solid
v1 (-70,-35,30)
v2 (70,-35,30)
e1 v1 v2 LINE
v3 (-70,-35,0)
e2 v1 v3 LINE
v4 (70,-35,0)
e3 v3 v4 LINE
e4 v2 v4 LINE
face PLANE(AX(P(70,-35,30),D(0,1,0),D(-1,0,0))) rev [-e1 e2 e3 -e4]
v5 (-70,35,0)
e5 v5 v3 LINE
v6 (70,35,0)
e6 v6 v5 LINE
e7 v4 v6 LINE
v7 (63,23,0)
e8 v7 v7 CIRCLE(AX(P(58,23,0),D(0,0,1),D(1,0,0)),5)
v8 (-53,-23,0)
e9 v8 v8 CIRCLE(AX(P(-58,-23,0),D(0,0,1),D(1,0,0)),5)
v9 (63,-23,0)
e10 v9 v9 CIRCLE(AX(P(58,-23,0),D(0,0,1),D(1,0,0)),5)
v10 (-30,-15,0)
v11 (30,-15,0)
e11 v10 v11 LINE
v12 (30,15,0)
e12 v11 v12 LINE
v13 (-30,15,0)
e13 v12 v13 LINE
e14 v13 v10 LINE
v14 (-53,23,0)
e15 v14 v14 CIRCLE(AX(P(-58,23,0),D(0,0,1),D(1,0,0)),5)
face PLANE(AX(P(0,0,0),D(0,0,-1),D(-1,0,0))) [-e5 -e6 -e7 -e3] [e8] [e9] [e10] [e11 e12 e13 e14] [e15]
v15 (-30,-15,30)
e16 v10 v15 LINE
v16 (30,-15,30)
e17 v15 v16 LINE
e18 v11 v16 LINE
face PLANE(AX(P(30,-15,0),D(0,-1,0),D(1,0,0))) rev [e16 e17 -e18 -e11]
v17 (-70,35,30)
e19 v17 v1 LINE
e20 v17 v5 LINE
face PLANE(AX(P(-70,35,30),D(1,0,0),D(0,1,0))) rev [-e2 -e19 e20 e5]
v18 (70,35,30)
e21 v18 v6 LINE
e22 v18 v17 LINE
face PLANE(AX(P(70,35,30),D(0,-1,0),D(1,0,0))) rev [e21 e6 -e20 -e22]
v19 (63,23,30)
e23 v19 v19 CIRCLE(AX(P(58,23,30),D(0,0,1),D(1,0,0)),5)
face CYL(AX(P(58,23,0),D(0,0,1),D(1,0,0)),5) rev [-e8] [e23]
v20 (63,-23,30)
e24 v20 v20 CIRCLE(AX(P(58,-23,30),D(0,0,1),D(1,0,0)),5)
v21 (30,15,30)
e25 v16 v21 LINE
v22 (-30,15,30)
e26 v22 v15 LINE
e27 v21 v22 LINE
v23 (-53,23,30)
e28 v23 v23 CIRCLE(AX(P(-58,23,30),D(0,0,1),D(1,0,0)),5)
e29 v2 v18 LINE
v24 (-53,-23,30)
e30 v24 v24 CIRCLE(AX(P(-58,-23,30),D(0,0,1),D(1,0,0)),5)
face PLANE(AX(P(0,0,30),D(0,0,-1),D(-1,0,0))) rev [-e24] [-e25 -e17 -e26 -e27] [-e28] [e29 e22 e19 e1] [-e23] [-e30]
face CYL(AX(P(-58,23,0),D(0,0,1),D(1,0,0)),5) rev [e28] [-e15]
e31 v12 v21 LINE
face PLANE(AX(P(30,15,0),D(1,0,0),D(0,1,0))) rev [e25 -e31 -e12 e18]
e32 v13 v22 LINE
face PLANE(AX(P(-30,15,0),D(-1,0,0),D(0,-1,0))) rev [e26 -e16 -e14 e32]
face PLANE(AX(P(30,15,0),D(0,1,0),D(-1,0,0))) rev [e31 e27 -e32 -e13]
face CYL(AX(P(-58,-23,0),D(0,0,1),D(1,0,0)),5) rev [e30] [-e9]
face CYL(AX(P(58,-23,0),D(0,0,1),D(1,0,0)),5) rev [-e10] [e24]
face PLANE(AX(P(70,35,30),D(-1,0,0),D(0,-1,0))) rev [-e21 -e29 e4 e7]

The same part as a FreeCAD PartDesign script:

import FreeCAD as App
import Part
import Sketcher
from FreeCAD import Vector
Q = App.Units.Quantity


def add_polygon(sketch, points):
    """Adds a closed chain of lines whose ends are joined by coincident constraints."""
    first, n = sketch.GeometryCount, len(points)
    for a, b in zip(points, points[1:] + points[:1]):
        sketch.addGeometry(Part.LineSegment(App.Vector(*a, 0), App.Vector(*b, 0)), False)
    for i in range(n):
        sketch.addConstraint(Sketcher.Constraint("Coincident", first + i, 2, first + (i + 1) % n, 1))

doc = App.newDocument("Part")
params = doc.addObject("Spreadsheet::Sheet", "Params")
for row, (alias, value) in enumerate([
    ("sketch1_width", "140 mm"),
    ("sketch1_height", "70 mm"),
    ("pad1_length", "30 mm"),
    ("sketch2_width", "60 mm"),
    ("sketch2_height", "30 mm"),
    ("sketch3_diameter", "10 mm"),
], start=1):
    params.set(f"A{row}", alias)
    params.set(f"B{row}", "=" + value)
    params.setAlias(f"B{row}", alias)

body = doc.addObject("PartDesign::Body", "Body")

# Sketch on XY plane
sketch1 = doc.addObject("Sketcher::SketchObject", "Sketch")
body.addObject(sketch1)
sketch1.AttachmentSupport = (doc.XY_Plane, [""])
sketch1.MapMode = "FlatFace"
add_polygon(sketch1, [(-70, 35), (-70, -35), (70, -35), (70, 35)])  # lines 0-3
sketch1.addConstraint([
    Sketcher.Constraint("Vertical", 0),
    Sketcher.Constraint("Horizontal", 1),
    Sketcher.Constraint("Vertical", 2),
    Sketcher.Constraint("Horizontal", 3),
    Sketcher.Constraint("Symmetric", 0, 2, 2, 2, -1, 1),
    Sketcher.Constraint("DistanceX", 1, 1, 1, 2, Q("140 mm")),
    Sketcher.Constraint("DistanceY", 0, 2, 0, 1, Q("70 mm")),
])
sketch1.setExpression("Constraints[9]", "Params.sketch1_width")
sketch1.setExpression("Constraints[10]", "Params.sketch1_height")
pad1 = doc.addObject("PartDesign::Pad", "Pad")
body.addObject(pad1)
pad1.Profile = sketch1
pad1.setExpression("Length", "Params.pad1_length")

# Sketch on XY plane
sketch2 = doc.addObject("Sketcher::SketchObject", "Sketch001")
body.addObject(sketch2)
sketch2.AttachmentSupport = (doc.XY_Plane, [""])
sketch2.MapMode = "FlatFace"
sketch2.AttachmentOffset = App.Placement(Vector(0, 0, 30), App.Rotation())
add_polygon(sketch2, [(-30, 15), (-30, -15), (30, -15), (30, 15)])  # lines 0-3
sketch2.addConstraint([
    Sketcher.Constraint("Vertical", 0),
    Sketcher.Constraint("Horizontal", 1),
    Sketcher.Constraint("Vertical", 2),
    Sketcher.Constraint("Horizontal", 3),
    Sketcher.Constraint("Symmetric", 0, 2, 2, 2, -1, 1),
    Sketcher.Constraint("DistanceX", 1, 1, 1, 2, Q("60 mm")),
    Sketcher.Constraint("DistanceY", 0, 2, 0, 1, Q("30 mm")),
])
sketch2.setExpression("Constraints[9]", "Params.sketch2_width")
sketch2.setExpression("Constraints[10]", "Params.sketch2_height")
pocket1 = doc.addObject("PartDesign::Pocket", "Pocket")
body.addObject(pocket1)
pocket1.Profile = sketch2
pocket1.Type = "ThroughAll"

# Sketch on XY plane
sketch3 = doc.addObject("Sketcher::SketchObject", "Sketch002")
body.addObject(sketch3)
sketch3.AttachmentSupport = (doc.XY_Plane, [""])
sketch3.MapMode = "FlatFace"
sketch3.AttachmentOffset = App.Placement(Vector(0, 0, 30), App.Rotation())
sketch3.addGeometry([
    Part.Circle(Vector(-58, 23, 0), Vector(0, 0, 1), 5),
    Part.Circle(Vector(58, 23, 0), Vector(0, 0, 1), 5),
    Part.Circle(Vector(58, -23, 0), Vector(0, 0, 1), 5),
    Part.Circle(Vector(-58, -23, 0), Vector(0, 0, 1), 5),
], False)
sketch3.addConstraint([
    Sketcher.Constraint("Equal", 0, 1),
    Sketcher.Constraint("Equal", 1, 2),
    Sketcher.Constraint("Equal", 2, 3),
    Sketcher.Constraint("Symmetric", 0, 3, 2, 3, -1, 1),
    Sketcher.Constraint("Symmetric", 1, 3, 3, 3, -1, 1),
    Sketcher.Constraint("Symmetric", 0, 3, 1, 3, -2),
    Sketcher.Constraint("Diameter", 0, Q("10 mm")),
    Sketcher.Constraint("DistanceX", 0, 3, -1, 1, Q("58 mm")),
    Sketcher.Constraint("DistanceY", -1, 1, 0, 3, Q("23 mm")),
])
sketch3.setExpression("Constraints[6]", "Params.sketch3_diameter")
pocket2 = doc.addObject("PartDesign::Pocket", "Pocket001")
body.addObject(pocket2)
pocket2.Profile = sketch3
pocket2.Type = "ThroughAll"

doc.recompute()
